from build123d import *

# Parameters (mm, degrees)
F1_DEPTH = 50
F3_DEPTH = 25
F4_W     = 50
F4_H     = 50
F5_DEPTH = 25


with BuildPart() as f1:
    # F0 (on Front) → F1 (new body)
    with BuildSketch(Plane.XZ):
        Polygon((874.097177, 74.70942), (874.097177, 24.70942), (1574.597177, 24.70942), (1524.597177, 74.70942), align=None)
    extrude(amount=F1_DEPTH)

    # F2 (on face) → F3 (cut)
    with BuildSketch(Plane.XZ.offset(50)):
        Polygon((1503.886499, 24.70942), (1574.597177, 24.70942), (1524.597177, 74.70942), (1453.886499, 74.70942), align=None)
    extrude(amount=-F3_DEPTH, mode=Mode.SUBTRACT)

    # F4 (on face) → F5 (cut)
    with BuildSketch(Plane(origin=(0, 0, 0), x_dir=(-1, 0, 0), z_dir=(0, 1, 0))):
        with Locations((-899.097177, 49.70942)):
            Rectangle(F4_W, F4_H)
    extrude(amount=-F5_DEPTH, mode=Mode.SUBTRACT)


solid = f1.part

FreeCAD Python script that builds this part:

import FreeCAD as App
import Part
import Sketcher
from FreeCAD import Vector
Q = App.Units.Quantity


def add_polygon(sketch, points):
    """Adds a closed chain of lines whose ends are joined by coincident constraints."""
    first, n = sketch.GeometryCount, len(points)
    for a, b in zip(points, points[1:] + points[:1]):
        sketch.addGeometry(Part.LineSegment(App.Vector(*a, 0), App.Vector(*b, 0)), False)
    for i in range(n):
        sketch.addConstraint(Sketcher.Constraint("Coincident", first + i, 2, first + (i + 1) % n, 1))

doc = App.newDocument("Part")
body = doc.addObject("PartDesign::Body", "Body")

# Sketch on XZ plane
sketch1 = body.newObject("Sketcher::SketchObject", "Sketch")
sketch1.AttachmentSupport = (doc.getObject("XZ_Plane"), [""])
sketch1.MapMode = "FlatFace"
add_polygon(sketch1, [(874, 75), (874, 25), (1575, 25), (1525, 75)])  # lines 0-3
sketch1.addConstraint(Sketcher.Constraint("Vertical", 0))
sketch1.addConstraint(Sketcher.Constraint("Horizontal", 1))
sketch1.addConstraint(Sketcher.Constraint("Horizontal", 3))
sketch1.addConstraint(Sketcher.Constraint("DistanceY", 0, 2, 0, 1, Q("50 mm")))
sketch1.addConstraint(Sketcher.Constraint("Angle", 2, Q("135 deg")))
sketch1.addConstraint(Sketcher.Constraint("DistanceX", 1, 1, 1, 2, Q("700.5 mm")))
sketch1.addConstraint(Sketcher.Constraint("DistanceY", -1, 1, 0, 2, Q("24.70942 mm")))
sketch1.addConstraint(Sketcher.Constraint("DistanceX", -1, 1, 0, 2, Q("874.097177 mm")))
pad1 = body.newObject("PartDesign::Pad", "Pad")
pad1.Profile = sketch1
pad1.Length = 50

# Sketch on XZ plane
sketch2 = body.newObject("Sketcher::SketchObject", "Sketch001")
sketch2.AttachmentSupport = (doc.getObject("XZ_Plane"), [""])
sketch2.MapMode = "FlatFace"
sketch2.AttachmentOffset = App.Placement(Vector(0, 0, 50), App.Rotation())
add_polygon(sketch2, [(1504, 25), (1575, 25), (1525, 75), (1454, 75)])  # lines 0-3
sketch2.addConstraint(Sketcher.Constraint("Horizontal", 0))
sketch2.addConstraint(Sketcher.Constraint("Horizontal", 2))
sketch2.addConstraint(Sketcher.Constraint("Parallel", 1, 3))
sketch2.addConstraint(Sketcher.Constraint("Angle", 1, Q("135 deg")))
sketch2.addConstraint(Sketcher.Constraint("DistanceX", 1, 2, 0, 2, Q("50 mm")))
sketch2.addConstraint(Sketcher.Constraint("DistanceX", 0, 1, 0, 2, Q("70.710678 mm")))
sketch2.addConstraint(Sketcher.Constraint("DistanceX", -1, 1, 2, 2, Q("1453.886499 mm")))
sketch2.addConstraint(Sketcher.Constraint("DistanceY", -1, 1, 0, 2, Q("24.70942 mm")))
pocket1 = body.newObject("PartDesign::Pocket", "Pocket")
pocket1.Profile = sketch2
pocket1.Length = 25

# Sketch on XZ plane
sketch3 = body.newObject("Sketcher::SketchObject", "Sketch002")
sketch3.AttachmentSupport = (doc.getObject("XZ_Plane"), [""])
sketch3.MapMode = "FlatFace"
add_polygon(sketch3, [(924, 75), (924, 25), (874, 25), (874, 75)])  # lines 0-3
sketch3.addConstraint(Sketcher.Constraint("Vertical", 0))
sketch3.addConstraint(Sketcher.Constraint("Horizontal", 1))
sketch3.addConstraint(Sketcher.Constraint("Vertical", 2))
sketch3.addConstraint(Sketcher.Constraint("Horizontal", 3))
sketch3.addConstraint(Sketcher.Constraint("Equal", 3, 0))
sketch3.addConstraint(Sketcher.Constraint("DistanceX", 1, 2, 1, 1, Q("50 mm")))
sketch3.addConstraint(Sketcher.Constraint("DistanceY", -1, 1, 0, 2, Q("24.70942 mm")))
sketch3.addConstraint(Sketcher.Constraint("DistanceX", -1, 1, 0, 2, Q("924.097177 mm")))
pocket2 = body.newObject("PartDesign::Pocket", "Pocket001")
pocket2.Profile = sketch3
pocket2.Length = 25
pocket2.Reversed = True

doc.recompute()
